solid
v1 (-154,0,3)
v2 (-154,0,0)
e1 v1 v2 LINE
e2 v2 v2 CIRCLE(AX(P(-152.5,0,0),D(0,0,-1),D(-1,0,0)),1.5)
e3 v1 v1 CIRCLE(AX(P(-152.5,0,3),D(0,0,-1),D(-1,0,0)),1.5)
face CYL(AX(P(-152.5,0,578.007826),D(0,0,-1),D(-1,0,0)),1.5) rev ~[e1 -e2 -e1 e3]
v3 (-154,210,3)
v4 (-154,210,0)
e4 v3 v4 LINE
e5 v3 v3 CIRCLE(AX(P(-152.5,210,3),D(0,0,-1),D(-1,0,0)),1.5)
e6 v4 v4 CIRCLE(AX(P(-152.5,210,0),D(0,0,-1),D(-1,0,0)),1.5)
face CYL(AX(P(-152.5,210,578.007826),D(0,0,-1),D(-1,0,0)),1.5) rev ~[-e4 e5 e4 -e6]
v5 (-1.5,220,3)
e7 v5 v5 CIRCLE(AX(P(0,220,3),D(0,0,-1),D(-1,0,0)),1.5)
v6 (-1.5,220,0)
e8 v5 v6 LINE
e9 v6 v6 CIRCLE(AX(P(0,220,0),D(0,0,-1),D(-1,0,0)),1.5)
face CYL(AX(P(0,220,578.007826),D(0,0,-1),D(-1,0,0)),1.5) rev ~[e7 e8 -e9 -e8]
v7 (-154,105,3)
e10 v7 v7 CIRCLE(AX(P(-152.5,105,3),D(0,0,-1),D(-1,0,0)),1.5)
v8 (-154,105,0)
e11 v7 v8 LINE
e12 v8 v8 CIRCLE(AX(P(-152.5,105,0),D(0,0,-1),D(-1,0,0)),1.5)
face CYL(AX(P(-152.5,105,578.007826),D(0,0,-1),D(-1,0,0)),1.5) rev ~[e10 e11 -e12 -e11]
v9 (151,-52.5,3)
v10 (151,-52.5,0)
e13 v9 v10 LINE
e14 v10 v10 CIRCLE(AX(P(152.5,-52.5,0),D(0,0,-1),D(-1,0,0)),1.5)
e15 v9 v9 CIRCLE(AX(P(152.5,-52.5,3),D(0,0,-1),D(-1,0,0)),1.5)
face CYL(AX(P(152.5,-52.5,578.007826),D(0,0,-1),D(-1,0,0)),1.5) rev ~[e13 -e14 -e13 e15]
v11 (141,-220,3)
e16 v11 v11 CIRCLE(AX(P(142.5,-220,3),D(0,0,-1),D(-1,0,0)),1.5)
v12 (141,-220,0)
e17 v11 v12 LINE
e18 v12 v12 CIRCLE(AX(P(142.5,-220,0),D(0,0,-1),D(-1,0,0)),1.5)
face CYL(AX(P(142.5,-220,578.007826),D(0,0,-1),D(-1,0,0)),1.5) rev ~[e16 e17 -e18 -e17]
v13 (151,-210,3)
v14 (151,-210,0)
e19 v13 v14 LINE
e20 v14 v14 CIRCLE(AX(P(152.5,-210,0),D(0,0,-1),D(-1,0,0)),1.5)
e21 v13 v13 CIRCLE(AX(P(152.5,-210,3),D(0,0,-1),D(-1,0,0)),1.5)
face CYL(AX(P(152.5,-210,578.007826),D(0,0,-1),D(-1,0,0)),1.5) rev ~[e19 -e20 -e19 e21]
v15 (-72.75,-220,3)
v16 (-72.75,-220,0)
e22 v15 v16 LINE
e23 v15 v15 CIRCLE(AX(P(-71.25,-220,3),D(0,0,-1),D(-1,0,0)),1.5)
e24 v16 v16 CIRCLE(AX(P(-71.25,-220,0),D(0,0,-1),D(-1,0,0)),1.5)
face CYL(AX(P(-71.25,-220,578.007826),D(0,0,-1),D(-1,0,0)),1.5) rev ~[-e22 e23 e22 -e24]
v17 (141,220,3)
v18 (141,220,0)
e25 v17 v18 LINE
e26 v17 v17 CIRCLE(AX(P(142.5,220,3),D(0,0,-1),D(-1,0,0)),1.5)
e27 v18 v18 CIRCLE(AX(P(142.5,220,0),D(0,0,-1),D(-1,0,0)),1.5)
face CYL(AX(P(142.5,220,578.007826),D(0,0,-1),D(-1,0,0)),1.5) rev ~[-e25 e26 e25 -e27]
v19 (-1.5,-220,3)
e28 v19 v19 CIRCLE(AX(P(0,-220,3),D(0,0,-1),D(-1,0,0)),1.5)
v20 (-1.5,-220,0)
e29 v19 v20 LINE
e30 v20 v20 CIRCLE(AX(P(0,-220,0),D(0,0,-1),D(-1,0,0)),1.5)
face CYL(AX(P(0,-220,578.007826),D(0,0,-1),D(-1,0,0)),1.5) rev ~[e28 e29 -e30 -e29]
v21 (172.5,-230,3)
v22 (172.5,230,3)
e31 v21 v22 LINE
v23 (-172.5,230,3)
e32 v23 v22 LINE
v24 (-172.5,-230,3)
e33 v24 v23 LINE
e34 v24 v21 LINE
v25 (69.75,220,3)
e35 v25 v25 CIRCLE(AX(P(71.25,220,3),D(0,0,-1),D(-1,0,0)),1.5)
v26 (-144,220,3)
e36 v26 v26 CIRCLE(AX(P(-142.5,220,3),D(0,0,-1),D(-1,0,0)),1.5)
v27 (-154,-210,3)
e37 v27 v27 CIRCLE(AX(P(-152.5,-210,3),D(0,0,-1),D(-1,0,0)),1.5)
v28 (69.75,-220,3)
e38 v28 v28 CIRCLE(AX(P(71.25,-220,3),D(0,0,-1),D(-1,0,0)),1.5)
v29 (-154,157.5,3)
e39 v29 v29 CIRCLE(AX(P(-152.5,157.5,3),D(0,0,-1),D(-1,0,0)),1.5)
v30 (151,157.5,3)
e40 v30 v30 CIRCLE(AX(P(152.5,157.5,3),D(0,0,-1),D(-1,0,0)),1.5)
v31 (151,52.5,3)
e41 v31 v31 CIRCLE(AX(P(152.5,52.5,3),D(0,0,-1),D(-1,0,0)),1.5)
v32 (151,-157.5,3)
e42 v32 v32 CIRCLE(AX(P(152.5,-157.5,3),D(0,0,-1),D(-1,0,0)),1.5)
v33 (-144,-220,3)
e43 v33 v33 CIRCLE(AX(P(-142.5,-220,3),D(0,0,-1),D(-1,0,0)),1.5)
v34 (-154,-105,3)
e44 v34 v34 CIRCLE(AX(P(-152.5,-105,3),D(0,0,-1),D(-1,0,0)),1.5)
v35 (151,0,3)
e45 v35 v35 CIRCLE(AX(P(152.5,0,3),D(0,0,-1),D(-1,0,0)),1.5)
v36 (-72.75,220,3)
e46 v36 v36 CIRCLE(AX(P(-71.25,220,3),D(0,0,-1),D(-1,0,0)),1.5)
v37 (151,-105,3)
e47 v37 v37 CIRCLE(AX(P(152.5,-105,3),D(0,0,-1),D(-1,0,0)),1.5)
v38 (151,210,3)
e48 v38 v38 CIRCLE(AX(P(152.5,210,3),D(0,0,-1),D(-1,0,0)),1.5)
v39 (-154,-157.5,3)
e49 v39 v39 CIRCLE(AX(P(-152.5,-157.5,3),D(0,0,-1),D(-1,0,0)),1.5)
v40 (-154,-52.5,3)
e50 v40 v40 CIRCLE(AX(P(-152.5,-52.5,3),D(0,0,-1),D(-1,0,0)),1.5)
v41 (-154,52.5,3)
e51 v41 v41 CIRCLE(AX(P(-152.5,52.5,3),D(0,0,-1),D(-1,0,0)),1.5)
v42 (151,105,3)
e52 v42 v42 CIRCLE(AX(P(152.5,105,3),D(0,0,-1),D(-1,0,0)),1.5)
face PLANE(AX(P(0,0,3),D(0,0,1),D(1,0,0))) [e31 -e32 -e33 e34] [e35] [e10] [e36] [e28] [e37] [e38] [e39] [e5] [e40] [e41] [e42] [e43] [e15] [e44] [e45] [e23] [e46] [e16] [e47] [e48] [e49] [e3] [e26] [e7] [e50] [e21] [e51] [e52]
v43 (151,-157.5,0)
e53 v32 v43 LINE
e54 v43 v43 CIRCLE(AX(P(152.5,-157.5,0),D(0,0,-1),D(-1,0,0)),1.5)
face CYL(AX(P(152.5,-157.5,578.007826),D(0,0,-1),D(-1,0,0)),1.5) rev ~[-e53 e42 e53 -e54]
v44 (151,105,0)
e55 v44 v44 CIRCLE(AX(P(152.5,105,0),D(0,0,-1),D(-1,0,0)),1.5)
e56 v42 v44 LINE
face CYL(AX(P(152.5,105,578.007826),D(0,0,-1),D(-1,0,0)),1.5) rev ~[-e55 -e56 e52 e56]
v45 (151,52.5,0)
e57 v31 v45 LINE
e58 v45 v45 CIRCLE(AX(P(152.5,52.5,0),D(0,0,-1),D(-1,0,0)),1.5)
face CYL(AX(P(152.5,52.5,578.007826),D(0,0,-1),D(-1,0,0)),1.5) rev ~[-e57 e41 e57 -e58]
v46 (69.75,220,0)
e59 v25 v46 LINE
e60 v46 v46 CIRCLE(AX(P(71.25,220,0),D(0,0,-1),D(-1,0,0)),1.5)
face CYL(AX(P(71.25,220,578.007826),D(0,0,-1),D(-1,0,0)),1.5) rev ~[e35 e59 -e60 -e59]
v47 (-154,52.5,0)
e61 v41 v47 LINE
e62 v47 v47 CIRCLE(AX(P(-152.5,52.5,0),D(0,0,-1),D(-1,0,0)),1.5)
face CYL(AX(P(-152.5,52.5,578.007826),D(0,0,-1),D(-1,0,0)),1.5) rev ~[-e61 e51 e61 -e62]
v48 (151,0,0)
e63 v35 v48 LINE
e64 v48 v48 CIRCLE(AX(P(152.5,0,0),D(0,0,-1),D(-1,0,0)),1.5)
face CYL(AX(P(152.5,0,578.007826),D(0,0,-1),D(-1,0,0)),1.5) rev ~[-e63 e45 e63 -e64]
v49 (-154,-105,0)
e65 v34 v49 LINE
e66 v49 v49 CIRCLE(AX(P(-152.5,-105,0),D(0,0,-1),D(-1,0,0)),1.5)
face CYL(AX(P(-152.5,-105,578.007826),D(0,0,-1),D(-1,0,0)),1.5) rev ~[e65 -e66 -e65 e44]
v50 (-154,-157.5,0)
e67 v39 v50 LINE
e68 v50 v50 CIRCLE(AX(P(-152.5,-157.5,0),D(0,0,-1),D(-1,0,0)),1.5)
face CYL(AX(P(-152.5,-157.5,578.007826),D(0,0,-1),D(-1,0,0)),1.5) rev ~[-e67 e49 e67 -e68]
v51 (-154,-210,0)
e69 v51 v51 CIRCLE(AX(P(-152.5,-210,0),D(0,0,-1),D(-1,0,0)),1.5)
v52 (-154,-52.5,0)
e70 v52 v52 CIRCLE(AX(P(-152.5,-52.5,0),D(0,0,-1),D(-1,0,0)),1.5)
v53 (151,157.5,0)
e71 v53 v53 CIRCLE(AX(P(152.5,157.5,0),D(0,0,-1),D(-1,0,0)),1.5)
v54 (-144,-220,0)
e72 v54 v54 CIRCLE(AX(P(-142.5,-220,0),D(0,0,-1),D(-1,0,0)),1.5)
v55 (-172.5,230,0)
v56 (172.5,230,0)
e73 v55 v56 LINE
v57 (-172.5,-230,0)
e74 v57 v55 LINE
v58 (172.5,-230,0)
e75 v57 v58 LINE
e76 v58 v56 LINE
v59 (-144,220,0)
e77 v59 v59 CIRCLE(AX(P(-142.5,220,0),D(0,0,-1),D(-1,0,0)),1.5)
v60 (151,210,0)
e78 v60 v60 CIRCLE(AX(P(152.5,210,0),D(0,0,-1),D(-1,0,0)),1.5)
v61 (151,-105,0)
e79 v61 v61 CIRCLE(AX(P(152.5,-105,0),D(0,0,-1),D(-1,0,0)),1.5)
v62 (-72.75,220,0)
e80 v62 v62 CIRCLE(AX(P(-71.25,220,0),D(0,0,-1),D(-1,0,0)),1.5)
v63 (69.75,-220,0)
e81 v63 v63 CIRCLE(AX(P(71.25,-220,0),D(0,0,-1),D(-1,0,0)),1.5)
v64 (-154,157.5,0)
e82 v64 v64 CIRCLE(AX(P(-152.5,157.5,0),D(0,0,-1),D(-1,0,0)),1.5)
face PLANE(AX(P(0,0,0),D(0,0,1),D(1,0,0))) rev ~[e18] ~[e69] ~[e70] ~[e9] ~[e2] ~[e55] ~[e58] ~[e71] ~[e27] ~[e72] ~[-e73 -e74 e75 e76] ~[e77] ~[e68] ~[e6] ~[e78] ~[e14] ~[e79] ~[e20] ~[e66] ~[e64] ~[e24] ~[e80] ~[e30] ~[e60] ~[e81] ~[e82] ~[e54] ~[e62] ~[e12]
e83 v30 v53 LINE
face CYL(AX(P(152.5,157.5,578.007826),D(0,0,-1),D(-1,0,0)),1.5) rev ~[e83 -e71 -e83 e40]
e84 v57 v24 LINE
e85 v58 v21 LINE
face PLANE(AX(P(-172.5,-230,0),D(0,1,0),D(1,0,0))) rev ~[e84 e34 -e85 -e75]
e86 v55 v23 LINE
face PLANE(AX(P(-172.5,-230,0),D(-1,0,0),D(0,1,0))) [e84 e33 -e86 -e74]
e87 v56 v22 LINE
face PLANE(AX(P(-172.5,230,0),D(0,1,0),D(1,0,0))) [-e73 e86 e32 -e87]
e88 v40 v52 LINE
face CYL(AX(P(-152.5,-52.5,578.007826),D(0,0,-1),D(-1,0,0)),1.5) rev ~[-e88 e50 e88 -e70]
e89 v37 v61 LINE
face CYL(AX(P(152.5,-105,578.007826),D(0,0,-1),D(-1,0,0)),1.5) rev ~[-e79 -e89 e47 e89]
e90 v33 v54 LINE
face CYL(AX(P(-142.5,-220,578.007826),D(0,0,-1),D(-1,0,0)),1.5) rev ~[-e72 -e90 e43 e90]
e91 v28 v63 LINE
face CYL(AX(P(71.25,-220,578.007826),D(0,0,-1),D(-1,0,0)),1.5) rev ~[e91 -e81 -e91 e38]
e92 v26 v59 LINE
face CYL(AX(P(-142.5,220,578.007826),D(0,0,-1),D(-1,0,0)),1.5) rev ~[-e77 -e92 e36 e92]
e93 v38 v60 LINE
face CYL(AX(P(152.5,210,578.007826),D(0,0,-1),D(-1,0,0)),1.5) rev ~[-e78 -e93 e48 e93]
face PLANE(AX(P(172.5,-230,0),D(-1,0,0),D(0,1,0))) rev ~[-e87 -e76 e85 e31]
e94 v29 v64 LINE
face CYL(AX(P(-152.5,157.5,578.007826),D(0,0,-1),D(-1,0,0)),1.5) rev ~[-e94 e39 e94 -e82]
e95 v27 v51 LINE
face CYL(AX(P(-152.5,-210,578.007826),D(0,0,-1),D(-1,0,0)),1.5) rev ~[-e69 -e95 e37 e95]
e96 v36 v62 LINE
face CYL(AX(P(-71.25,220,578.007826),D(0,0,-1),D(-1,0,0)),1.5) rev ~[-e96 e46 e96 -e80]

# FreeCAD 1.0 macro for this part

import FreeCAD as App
import Part
import Sketcher
from FreeCAD import Vector
Q = App.Units.Quantity


def add_polygon(sketch, points):
    """Adds a closed chain of lines whose ends are joined by coincident constraints."""
    first, n = sketch.GeometryCount, len(points)
    for a, b in zip(points, points[1:] + points[:1]):
        sketch.addGeometry(Part.LineSegment(App.Vector(*a, 0), App.Vector(*b, 0)), False)
    for i in range(n):
        sketch.addConstraint(Sketcher.Constraint("Coincident", first + i, 2, first + (i + 1) % n, 1))

doc = App.newDocument("Part")
body = doc.addObject("PartDesign::Body", "Body")

# Sketch on XY plane
sketch1 = doc.addObject("Sketcher::SketchObject", "Sketch")
body.addObject(sketch1)
sketch1.AttachmentSupport = (doc.XY_Plane, [""])
sketch1.MapMode = "FlatFace"
add_polygon(sketch1, [(-172, 230), (-172, -230), (172, -230), (172, 230)])  # lines 0-3
sketch1.addConstraint(Sketcher.Constraint("Vertical", 0))
sketch1.addConstraint(Sketcher.Constraint("Horizontal", 1))
sketch1.addConstraint(Sketcher.Constraint("Vertical", 2))
sketch1.addConstraint(Sketcher.Constraint("Horizontal", 3))
sketch1.addConstraint(Sketcher.Constraint("Symmetric", 0, 2, 2, 2, -1, 1))
sketch1.addConstraint(Sketcher.Constraint("DistanceX", 1, 1, 1, 2, Q("345 mm")))
sketch1.addConstraint(Sketcher.Constraint("DistanceY", 0, 2, 0, 1, Q("460 mm")))
pad1 = doc.addObject("PartDesign::Pad", "Pad")
body.addObject(pad1)
pad1.Profile = sketch1
pad1.Length = 3

# Sketch on XY plane
sketch2 = doc.addObject("Sketcher::SketchObject", "Sketch001")
body.addObject(sketch2)
sketch2.AttachmentSupport = (doc.XY_Plane, [""])
sketch2.MapMode = "FlatFace"
sketch2.AttachmentOffset = App.Placement(Vector(0, 0, 3), App.Rotation())
sketch2.addGeometry(Part.Circle(Vector(-152.5, 210, 0), Vector(0, 0, 1), 1.5), False)
sketch2.addGeometry(Part.Circle(Vector(-152.5, 157.5, 0), Vector(0, 0, 1), 1.5), False)
sketch2.addGeometry(Part.Circle(Vector(-152.5, 105, 0), Vector(0, 0, 1), 1.5), False)
sketch2.addGeometry(Part.Circle(Vector(-152.5, 52.5, 0), Vector(0, 0, 1), 1.5), False)
sketch2.addGeometry(Part.Circle(Vector(-152.5, 0, 0), Vector(0, 0, 1), 1.5), False)
sketch2.addGeometry(Part.Circle(Vector(-152.5, -52.5, 0), Vector(0, 0, 1), 1.5), False)
sketch2.addGeometry(Part.Circle(Vector(-152.5, -105, 0), Vector(0, 0, 1), 1.5), False)
sketch2.addGeometry(Part.Circle(Vector(-152.5, -157.5, 0), Vector(0, 0, 1), 1.5), False)
sketch2.addGeometry(Part.Circle(Vector(-152.5, -210, 0), Vector(0, 0, 1), 1.5), False)
sketch2.addGeometry(Part.Circle(Vector(152.5, -210, 0), Vector(0, 0, 1), 1.5), False)
sketch2.addGeometry(Part.Circle(Vector(152.5, -157.5, 0), Vector(0, 0, 1), 1.5), False)
sketch2.addGeometry(Part.Circle(Vector(152.5, -105, 0), Vector(0, 0, 1), 1.5), False)
sketch2.addGeometry(Part.Circle(Vector(152.5, -52.5, 0), Vector(0, 0, 1), 1.5), False)
sketch2.addGeometry(Part.Circle(Vector(152.5, 0, 0), Vector(0, 0, 1), 1.5), False)
sketch2.addGeometry(Part.Circle(Vector(152.5, 52.5, 0), Vector(0, 0, 1), 1.5), False)
sketch2.addGeometry(Part.Circle(Vector(152.5, 105, 0), Vector(0, 0, 1), 1.5), False)
sketch2.addGeometry(Part.Circle(Vector(152.5, 157.5, 0), Vector(0, 0, 1), 1.5), False)
sketch2.addGeometry(Part.Circle(Vector(152.5, 210, 0), Vector(0, 0, 1), 1.5), False)
sketch2.addConstraint(Sketcher.Constraint("Equal", 0, 1))
sketch2.addConstraint(Sketcher.Constraint("Equal", 1, 2))
sketch2.addConstraint(Sketcher.Constraint("Equal", 2, 3))
sketch2.addConstraint(Sketcher.Constraint("Equal", 3, 4))
sketch2.addConstraint(Sketcher.Constraint("Equal", 4, 5))
sketch2.addConstraint(Sketcher.Constraint("Equal", 5, 6))
sketch2.addConstraint(Sketcher.Constraint("Equal", 6, 7))
sketch2.addConstraint(Sketcher.Constraint("Equal", 7, 8))
sketch2.addConstraint(Sketcher.Constraint("Equal", 8, 9))
sketch2.addConstraint(Sketcher.Constraint("Equal", 9, 10))
sketch2.addConstraint(Sketcher.Constraint("Equal", 10, 11))
sketch2.addConstraint(Sketcher.Constraint("Equal", 11, 12))
sketch2.addConstraint(Sketcher.Constraint("Equal", 12, 13))
sketch2.addConstraint(Sketcher.Constraint("Equal", 13, 14))
sketch2.addConstraint(Sketcher.Constraint("Equal", 14, 15))
sketch2.addConstraint(Sketcher.Constraint("Equal", 15, 16))
sketch2.addConstraint(Sketcher.Constraint("Equal", 16, 17))
sketch2.addConstraint(Sketcher.Constraint("Symmetric", 0, 3, 9, 3, -1, 1))
sketch2.addConstraint(Sketcher.Constraint("Symmetric", 1, 3, 10, 3, -1, 1))
sketch2.addConstraint(Sketcher.Constraint("Symmetric", 2, 3, 11, 3, -1, 1))
sketch2.addConstraint(Sketcher.Constraint("Symmetric", 3, 3, 12, 3, -1, 1))
sketch2.addConstraint(Sketcher.Constraint("Symmetric", 4, 3, 13, 3, -1, 1))
sketch2.addConstraint(Sketcher.Constraint("Symmetric", 5, 3, 14, 3, -1, 1))
sketch2.addConstraint(Sketcher.Constraint("Symmetric", 6, 3, 15, 3, -1, 1))
sketch2.addConstraint(Sketcher.Constraint("Symmetric", 7, 3, 16, 3, -1, 1))
sketch2.addConstraint(Sketcher.Constraint("Symmetric", 8, 3, 17, 3, -1, 1))
sketch2.addConstraint(Sketcher.Constraint("Symmetric", 8, 3, 9, 3, -2))
sketch2.addConstraint(Sketcher.Constraint("Symmetric", 7, 3, 10, 3, -2))
sketch2.addConstraint(Sketcher.Constraint("Symmetric", 6, 3, 11, 3, -2))
sketch2.addConstraint(Sketcher.Constraint("Symmetric", 5, 3, 12, 3, -2))
sketch2.addConstraint(Sketcher.Constraint("PointOnObject", 4, 3, -1))
sketch2.addConstraint(Sketcher.Constraint("Vertical", 0, 3, 1, 3))
sketch2.addConstraint(Sketcher.Constraint("Vertical", 1, 3, 2, 3))
sketch2.addConstraint(Sketcher.Constraint("Vertical", 2, 3, 3, 3))
sketch2.addConstraint(Sketcher.Constraint("Vertical", 3, 3, 4, 3))
sketch2.addConstraint(Sketcher.Constraint("Diameter", 0, Q("3 mm")))
sketch2.addConstraint(Sketcher.Constraint("DistanceY", -1, 1, 0, 3, Q("210 mm")))
sketch2.addConstraint(Sketcher.Constraint("DistanceY", -1, 1, 2, 3, Q("105 mm")))
sketch2.addConstraint(Sketcher.Constraint("DistanceY", 3, 3, 1, 3, Q("105 mm")))
sketch2.addConstraint(Sketcher.Constraint("DistanceY", 5, 3, 3, 3, Q("105 mm")))
sketch2.addConstraint(Sketcher.Constraint("DistanceX", 8, 3, 9, 3, Q("305 mm")))
doc.recompute()
hole = doc.addObject("PartDesign::Hole", "Hole")
body.addObject(hole)
hole.Profile = sketch2
hole.ThreadType = "None"
hole.Diameter = 3
hole.DepthType = "ThroughAll"

# Sketch on XY plane
sketch3 = doc.addObject("Sketcher::SketchObject", "Sketch002")
body.addObject(sketch3)
sketch3.AttachmentSupport = (doc.XY_Plane, [""])
sketch3.MapMode = "FlatFace"
sketch3.AttachmentOffset = App.Placement(Vector(0, 0, 3), App.Rotation())
sketch3.addGeometry(Part.Circle(Vector(-142.5, 220, 0), Vector(0, 0, 1), 1.5), False)
sketch3.addGeometry(Part.Circle(Vector(-71.2, 220, 0), Vector(0, 0, 1), 1.5), False)
sketch3.addGeometry(Part.Circle(Vector(0, 220, 0), Vector(0, 0, 1), 1.5), False)
sketch3.addGeometry(Part.Circle(Vector(71.2, 220, 0), Vector(0, 0, 1), 1.5), False)
sketch3.addGeometry(Part.Circle(Vector(142.5, 220, 0), Vector(0, 0, 1), 1.5), False)
sketch3.addGeometry(Part.Circle(Vector(-142.5, -220, 0), Vector(0, 0, 1), 1.5), False)
sketch3.addGeometry(Part.Circle(Vector(-71.2, -220, 0), Vector(0, 0, 1), 1.5), False)
sketch3.addGeometry(Part.Circle(Vector(0, -220, 0), Vector(0, 0, 1), 1.5), False)
sketch3.addGeometry(Part.Circle(Vector(71.2, -220, 0), Vector(0, 0, 1), 1.5), False)
sketch3.addGeometry(Part.Circle(Vector(142.5, -220, 0), Vector(0, 0, 1), 1.5), False)
sketch3.addConstraint(Sketcher.Constraint("Equal", 0, 1))
sketch3.addConstraint(Sketcher.Constraint("Equal", 1, 2))
sketch3.addConstraint(Sketcher.Constraint("Equal", 2, 3))
sketch3.addConstraint(Sketcher.Constraint("Equal", 3, 4))
sketch3.addConstraint(Sketcher.Constraint("Equal", 4, 5))
sketch3.addConstraint(Sketcher.Constraint("Equal", 5, 6))
sketch3.addConstraint(Sketcher.Constraint("Equal", 6, 7))
sketch3.addConstraint(Sketcher.Constraint("Equal", 7, 8))
sketch3.addConstraint(Sketcher.Constraint("Equal", 8, 9))
sketch3.addConstraint(Sketcher.Constraint("Symmetric", 4, 3, 5, 3, -1, 1))
sketch3.addConstraint(Sketcher.Constraint("Symmetric", 3, 3, 6, 3, -1, 1))
sketch3.addConstraint(Sketcher.Constraint("Symmetric", 2, 3, 7, 3, -1, 1))
sketch3.addConstraint(Sketcher.Constraint("Symmetric", 1, 3, 8, 3, -1, 1))
sketch3.addConstraint(Sketcher.Constraint("Symmetric", 0, 3, 9, 3, -1, 1))
sketch3.addConstraint(Sketcher.Constraint("Symmetric", 1, 3, 3, 3, -2))
sketch3.addConstraint(Sketcher.Constraint("Symmetric", 0, 3, 4, 3, -2))
sketch3.addConstraint(Sketcher.Constraint("PointOnObject", 2, 3, -2))
sketch3.addConstraint(Sketcher.Constraint("Horizontal", 0, 3, 1, 3))
sketch3.addConstraint(Sketcher.Constraint("Horizontal", 1, 3, 2, 3))
sketch3.addConstraint(Sketcher.Constraint("Diameter", 0, Q("3 mm")))
sketch3.addConstraint(Sketcher.Constraint("DistanceY", -1, 1, 0, 3, Q("220 mm")))
sketch3.addConstraint(Sketcher.Constraint("DistanceX", 0, 3, 4, 3, Q("285 mm")))
sketch3.addConstraint(Sketcher.Constraint("DistanceX", 1, 3, 3, 3, Q("142.5 mm")))
doc.recompute()
hole2 = doc.addObject("PartDesign::Hole", "Hole001")
body.addObject(hole2)
hole2.Profile = sketch3
hole2.ThreadType = "None"
hole2.Diameter = 3
hole2.DepthType = "ThroughAll"

doc.recompute()
